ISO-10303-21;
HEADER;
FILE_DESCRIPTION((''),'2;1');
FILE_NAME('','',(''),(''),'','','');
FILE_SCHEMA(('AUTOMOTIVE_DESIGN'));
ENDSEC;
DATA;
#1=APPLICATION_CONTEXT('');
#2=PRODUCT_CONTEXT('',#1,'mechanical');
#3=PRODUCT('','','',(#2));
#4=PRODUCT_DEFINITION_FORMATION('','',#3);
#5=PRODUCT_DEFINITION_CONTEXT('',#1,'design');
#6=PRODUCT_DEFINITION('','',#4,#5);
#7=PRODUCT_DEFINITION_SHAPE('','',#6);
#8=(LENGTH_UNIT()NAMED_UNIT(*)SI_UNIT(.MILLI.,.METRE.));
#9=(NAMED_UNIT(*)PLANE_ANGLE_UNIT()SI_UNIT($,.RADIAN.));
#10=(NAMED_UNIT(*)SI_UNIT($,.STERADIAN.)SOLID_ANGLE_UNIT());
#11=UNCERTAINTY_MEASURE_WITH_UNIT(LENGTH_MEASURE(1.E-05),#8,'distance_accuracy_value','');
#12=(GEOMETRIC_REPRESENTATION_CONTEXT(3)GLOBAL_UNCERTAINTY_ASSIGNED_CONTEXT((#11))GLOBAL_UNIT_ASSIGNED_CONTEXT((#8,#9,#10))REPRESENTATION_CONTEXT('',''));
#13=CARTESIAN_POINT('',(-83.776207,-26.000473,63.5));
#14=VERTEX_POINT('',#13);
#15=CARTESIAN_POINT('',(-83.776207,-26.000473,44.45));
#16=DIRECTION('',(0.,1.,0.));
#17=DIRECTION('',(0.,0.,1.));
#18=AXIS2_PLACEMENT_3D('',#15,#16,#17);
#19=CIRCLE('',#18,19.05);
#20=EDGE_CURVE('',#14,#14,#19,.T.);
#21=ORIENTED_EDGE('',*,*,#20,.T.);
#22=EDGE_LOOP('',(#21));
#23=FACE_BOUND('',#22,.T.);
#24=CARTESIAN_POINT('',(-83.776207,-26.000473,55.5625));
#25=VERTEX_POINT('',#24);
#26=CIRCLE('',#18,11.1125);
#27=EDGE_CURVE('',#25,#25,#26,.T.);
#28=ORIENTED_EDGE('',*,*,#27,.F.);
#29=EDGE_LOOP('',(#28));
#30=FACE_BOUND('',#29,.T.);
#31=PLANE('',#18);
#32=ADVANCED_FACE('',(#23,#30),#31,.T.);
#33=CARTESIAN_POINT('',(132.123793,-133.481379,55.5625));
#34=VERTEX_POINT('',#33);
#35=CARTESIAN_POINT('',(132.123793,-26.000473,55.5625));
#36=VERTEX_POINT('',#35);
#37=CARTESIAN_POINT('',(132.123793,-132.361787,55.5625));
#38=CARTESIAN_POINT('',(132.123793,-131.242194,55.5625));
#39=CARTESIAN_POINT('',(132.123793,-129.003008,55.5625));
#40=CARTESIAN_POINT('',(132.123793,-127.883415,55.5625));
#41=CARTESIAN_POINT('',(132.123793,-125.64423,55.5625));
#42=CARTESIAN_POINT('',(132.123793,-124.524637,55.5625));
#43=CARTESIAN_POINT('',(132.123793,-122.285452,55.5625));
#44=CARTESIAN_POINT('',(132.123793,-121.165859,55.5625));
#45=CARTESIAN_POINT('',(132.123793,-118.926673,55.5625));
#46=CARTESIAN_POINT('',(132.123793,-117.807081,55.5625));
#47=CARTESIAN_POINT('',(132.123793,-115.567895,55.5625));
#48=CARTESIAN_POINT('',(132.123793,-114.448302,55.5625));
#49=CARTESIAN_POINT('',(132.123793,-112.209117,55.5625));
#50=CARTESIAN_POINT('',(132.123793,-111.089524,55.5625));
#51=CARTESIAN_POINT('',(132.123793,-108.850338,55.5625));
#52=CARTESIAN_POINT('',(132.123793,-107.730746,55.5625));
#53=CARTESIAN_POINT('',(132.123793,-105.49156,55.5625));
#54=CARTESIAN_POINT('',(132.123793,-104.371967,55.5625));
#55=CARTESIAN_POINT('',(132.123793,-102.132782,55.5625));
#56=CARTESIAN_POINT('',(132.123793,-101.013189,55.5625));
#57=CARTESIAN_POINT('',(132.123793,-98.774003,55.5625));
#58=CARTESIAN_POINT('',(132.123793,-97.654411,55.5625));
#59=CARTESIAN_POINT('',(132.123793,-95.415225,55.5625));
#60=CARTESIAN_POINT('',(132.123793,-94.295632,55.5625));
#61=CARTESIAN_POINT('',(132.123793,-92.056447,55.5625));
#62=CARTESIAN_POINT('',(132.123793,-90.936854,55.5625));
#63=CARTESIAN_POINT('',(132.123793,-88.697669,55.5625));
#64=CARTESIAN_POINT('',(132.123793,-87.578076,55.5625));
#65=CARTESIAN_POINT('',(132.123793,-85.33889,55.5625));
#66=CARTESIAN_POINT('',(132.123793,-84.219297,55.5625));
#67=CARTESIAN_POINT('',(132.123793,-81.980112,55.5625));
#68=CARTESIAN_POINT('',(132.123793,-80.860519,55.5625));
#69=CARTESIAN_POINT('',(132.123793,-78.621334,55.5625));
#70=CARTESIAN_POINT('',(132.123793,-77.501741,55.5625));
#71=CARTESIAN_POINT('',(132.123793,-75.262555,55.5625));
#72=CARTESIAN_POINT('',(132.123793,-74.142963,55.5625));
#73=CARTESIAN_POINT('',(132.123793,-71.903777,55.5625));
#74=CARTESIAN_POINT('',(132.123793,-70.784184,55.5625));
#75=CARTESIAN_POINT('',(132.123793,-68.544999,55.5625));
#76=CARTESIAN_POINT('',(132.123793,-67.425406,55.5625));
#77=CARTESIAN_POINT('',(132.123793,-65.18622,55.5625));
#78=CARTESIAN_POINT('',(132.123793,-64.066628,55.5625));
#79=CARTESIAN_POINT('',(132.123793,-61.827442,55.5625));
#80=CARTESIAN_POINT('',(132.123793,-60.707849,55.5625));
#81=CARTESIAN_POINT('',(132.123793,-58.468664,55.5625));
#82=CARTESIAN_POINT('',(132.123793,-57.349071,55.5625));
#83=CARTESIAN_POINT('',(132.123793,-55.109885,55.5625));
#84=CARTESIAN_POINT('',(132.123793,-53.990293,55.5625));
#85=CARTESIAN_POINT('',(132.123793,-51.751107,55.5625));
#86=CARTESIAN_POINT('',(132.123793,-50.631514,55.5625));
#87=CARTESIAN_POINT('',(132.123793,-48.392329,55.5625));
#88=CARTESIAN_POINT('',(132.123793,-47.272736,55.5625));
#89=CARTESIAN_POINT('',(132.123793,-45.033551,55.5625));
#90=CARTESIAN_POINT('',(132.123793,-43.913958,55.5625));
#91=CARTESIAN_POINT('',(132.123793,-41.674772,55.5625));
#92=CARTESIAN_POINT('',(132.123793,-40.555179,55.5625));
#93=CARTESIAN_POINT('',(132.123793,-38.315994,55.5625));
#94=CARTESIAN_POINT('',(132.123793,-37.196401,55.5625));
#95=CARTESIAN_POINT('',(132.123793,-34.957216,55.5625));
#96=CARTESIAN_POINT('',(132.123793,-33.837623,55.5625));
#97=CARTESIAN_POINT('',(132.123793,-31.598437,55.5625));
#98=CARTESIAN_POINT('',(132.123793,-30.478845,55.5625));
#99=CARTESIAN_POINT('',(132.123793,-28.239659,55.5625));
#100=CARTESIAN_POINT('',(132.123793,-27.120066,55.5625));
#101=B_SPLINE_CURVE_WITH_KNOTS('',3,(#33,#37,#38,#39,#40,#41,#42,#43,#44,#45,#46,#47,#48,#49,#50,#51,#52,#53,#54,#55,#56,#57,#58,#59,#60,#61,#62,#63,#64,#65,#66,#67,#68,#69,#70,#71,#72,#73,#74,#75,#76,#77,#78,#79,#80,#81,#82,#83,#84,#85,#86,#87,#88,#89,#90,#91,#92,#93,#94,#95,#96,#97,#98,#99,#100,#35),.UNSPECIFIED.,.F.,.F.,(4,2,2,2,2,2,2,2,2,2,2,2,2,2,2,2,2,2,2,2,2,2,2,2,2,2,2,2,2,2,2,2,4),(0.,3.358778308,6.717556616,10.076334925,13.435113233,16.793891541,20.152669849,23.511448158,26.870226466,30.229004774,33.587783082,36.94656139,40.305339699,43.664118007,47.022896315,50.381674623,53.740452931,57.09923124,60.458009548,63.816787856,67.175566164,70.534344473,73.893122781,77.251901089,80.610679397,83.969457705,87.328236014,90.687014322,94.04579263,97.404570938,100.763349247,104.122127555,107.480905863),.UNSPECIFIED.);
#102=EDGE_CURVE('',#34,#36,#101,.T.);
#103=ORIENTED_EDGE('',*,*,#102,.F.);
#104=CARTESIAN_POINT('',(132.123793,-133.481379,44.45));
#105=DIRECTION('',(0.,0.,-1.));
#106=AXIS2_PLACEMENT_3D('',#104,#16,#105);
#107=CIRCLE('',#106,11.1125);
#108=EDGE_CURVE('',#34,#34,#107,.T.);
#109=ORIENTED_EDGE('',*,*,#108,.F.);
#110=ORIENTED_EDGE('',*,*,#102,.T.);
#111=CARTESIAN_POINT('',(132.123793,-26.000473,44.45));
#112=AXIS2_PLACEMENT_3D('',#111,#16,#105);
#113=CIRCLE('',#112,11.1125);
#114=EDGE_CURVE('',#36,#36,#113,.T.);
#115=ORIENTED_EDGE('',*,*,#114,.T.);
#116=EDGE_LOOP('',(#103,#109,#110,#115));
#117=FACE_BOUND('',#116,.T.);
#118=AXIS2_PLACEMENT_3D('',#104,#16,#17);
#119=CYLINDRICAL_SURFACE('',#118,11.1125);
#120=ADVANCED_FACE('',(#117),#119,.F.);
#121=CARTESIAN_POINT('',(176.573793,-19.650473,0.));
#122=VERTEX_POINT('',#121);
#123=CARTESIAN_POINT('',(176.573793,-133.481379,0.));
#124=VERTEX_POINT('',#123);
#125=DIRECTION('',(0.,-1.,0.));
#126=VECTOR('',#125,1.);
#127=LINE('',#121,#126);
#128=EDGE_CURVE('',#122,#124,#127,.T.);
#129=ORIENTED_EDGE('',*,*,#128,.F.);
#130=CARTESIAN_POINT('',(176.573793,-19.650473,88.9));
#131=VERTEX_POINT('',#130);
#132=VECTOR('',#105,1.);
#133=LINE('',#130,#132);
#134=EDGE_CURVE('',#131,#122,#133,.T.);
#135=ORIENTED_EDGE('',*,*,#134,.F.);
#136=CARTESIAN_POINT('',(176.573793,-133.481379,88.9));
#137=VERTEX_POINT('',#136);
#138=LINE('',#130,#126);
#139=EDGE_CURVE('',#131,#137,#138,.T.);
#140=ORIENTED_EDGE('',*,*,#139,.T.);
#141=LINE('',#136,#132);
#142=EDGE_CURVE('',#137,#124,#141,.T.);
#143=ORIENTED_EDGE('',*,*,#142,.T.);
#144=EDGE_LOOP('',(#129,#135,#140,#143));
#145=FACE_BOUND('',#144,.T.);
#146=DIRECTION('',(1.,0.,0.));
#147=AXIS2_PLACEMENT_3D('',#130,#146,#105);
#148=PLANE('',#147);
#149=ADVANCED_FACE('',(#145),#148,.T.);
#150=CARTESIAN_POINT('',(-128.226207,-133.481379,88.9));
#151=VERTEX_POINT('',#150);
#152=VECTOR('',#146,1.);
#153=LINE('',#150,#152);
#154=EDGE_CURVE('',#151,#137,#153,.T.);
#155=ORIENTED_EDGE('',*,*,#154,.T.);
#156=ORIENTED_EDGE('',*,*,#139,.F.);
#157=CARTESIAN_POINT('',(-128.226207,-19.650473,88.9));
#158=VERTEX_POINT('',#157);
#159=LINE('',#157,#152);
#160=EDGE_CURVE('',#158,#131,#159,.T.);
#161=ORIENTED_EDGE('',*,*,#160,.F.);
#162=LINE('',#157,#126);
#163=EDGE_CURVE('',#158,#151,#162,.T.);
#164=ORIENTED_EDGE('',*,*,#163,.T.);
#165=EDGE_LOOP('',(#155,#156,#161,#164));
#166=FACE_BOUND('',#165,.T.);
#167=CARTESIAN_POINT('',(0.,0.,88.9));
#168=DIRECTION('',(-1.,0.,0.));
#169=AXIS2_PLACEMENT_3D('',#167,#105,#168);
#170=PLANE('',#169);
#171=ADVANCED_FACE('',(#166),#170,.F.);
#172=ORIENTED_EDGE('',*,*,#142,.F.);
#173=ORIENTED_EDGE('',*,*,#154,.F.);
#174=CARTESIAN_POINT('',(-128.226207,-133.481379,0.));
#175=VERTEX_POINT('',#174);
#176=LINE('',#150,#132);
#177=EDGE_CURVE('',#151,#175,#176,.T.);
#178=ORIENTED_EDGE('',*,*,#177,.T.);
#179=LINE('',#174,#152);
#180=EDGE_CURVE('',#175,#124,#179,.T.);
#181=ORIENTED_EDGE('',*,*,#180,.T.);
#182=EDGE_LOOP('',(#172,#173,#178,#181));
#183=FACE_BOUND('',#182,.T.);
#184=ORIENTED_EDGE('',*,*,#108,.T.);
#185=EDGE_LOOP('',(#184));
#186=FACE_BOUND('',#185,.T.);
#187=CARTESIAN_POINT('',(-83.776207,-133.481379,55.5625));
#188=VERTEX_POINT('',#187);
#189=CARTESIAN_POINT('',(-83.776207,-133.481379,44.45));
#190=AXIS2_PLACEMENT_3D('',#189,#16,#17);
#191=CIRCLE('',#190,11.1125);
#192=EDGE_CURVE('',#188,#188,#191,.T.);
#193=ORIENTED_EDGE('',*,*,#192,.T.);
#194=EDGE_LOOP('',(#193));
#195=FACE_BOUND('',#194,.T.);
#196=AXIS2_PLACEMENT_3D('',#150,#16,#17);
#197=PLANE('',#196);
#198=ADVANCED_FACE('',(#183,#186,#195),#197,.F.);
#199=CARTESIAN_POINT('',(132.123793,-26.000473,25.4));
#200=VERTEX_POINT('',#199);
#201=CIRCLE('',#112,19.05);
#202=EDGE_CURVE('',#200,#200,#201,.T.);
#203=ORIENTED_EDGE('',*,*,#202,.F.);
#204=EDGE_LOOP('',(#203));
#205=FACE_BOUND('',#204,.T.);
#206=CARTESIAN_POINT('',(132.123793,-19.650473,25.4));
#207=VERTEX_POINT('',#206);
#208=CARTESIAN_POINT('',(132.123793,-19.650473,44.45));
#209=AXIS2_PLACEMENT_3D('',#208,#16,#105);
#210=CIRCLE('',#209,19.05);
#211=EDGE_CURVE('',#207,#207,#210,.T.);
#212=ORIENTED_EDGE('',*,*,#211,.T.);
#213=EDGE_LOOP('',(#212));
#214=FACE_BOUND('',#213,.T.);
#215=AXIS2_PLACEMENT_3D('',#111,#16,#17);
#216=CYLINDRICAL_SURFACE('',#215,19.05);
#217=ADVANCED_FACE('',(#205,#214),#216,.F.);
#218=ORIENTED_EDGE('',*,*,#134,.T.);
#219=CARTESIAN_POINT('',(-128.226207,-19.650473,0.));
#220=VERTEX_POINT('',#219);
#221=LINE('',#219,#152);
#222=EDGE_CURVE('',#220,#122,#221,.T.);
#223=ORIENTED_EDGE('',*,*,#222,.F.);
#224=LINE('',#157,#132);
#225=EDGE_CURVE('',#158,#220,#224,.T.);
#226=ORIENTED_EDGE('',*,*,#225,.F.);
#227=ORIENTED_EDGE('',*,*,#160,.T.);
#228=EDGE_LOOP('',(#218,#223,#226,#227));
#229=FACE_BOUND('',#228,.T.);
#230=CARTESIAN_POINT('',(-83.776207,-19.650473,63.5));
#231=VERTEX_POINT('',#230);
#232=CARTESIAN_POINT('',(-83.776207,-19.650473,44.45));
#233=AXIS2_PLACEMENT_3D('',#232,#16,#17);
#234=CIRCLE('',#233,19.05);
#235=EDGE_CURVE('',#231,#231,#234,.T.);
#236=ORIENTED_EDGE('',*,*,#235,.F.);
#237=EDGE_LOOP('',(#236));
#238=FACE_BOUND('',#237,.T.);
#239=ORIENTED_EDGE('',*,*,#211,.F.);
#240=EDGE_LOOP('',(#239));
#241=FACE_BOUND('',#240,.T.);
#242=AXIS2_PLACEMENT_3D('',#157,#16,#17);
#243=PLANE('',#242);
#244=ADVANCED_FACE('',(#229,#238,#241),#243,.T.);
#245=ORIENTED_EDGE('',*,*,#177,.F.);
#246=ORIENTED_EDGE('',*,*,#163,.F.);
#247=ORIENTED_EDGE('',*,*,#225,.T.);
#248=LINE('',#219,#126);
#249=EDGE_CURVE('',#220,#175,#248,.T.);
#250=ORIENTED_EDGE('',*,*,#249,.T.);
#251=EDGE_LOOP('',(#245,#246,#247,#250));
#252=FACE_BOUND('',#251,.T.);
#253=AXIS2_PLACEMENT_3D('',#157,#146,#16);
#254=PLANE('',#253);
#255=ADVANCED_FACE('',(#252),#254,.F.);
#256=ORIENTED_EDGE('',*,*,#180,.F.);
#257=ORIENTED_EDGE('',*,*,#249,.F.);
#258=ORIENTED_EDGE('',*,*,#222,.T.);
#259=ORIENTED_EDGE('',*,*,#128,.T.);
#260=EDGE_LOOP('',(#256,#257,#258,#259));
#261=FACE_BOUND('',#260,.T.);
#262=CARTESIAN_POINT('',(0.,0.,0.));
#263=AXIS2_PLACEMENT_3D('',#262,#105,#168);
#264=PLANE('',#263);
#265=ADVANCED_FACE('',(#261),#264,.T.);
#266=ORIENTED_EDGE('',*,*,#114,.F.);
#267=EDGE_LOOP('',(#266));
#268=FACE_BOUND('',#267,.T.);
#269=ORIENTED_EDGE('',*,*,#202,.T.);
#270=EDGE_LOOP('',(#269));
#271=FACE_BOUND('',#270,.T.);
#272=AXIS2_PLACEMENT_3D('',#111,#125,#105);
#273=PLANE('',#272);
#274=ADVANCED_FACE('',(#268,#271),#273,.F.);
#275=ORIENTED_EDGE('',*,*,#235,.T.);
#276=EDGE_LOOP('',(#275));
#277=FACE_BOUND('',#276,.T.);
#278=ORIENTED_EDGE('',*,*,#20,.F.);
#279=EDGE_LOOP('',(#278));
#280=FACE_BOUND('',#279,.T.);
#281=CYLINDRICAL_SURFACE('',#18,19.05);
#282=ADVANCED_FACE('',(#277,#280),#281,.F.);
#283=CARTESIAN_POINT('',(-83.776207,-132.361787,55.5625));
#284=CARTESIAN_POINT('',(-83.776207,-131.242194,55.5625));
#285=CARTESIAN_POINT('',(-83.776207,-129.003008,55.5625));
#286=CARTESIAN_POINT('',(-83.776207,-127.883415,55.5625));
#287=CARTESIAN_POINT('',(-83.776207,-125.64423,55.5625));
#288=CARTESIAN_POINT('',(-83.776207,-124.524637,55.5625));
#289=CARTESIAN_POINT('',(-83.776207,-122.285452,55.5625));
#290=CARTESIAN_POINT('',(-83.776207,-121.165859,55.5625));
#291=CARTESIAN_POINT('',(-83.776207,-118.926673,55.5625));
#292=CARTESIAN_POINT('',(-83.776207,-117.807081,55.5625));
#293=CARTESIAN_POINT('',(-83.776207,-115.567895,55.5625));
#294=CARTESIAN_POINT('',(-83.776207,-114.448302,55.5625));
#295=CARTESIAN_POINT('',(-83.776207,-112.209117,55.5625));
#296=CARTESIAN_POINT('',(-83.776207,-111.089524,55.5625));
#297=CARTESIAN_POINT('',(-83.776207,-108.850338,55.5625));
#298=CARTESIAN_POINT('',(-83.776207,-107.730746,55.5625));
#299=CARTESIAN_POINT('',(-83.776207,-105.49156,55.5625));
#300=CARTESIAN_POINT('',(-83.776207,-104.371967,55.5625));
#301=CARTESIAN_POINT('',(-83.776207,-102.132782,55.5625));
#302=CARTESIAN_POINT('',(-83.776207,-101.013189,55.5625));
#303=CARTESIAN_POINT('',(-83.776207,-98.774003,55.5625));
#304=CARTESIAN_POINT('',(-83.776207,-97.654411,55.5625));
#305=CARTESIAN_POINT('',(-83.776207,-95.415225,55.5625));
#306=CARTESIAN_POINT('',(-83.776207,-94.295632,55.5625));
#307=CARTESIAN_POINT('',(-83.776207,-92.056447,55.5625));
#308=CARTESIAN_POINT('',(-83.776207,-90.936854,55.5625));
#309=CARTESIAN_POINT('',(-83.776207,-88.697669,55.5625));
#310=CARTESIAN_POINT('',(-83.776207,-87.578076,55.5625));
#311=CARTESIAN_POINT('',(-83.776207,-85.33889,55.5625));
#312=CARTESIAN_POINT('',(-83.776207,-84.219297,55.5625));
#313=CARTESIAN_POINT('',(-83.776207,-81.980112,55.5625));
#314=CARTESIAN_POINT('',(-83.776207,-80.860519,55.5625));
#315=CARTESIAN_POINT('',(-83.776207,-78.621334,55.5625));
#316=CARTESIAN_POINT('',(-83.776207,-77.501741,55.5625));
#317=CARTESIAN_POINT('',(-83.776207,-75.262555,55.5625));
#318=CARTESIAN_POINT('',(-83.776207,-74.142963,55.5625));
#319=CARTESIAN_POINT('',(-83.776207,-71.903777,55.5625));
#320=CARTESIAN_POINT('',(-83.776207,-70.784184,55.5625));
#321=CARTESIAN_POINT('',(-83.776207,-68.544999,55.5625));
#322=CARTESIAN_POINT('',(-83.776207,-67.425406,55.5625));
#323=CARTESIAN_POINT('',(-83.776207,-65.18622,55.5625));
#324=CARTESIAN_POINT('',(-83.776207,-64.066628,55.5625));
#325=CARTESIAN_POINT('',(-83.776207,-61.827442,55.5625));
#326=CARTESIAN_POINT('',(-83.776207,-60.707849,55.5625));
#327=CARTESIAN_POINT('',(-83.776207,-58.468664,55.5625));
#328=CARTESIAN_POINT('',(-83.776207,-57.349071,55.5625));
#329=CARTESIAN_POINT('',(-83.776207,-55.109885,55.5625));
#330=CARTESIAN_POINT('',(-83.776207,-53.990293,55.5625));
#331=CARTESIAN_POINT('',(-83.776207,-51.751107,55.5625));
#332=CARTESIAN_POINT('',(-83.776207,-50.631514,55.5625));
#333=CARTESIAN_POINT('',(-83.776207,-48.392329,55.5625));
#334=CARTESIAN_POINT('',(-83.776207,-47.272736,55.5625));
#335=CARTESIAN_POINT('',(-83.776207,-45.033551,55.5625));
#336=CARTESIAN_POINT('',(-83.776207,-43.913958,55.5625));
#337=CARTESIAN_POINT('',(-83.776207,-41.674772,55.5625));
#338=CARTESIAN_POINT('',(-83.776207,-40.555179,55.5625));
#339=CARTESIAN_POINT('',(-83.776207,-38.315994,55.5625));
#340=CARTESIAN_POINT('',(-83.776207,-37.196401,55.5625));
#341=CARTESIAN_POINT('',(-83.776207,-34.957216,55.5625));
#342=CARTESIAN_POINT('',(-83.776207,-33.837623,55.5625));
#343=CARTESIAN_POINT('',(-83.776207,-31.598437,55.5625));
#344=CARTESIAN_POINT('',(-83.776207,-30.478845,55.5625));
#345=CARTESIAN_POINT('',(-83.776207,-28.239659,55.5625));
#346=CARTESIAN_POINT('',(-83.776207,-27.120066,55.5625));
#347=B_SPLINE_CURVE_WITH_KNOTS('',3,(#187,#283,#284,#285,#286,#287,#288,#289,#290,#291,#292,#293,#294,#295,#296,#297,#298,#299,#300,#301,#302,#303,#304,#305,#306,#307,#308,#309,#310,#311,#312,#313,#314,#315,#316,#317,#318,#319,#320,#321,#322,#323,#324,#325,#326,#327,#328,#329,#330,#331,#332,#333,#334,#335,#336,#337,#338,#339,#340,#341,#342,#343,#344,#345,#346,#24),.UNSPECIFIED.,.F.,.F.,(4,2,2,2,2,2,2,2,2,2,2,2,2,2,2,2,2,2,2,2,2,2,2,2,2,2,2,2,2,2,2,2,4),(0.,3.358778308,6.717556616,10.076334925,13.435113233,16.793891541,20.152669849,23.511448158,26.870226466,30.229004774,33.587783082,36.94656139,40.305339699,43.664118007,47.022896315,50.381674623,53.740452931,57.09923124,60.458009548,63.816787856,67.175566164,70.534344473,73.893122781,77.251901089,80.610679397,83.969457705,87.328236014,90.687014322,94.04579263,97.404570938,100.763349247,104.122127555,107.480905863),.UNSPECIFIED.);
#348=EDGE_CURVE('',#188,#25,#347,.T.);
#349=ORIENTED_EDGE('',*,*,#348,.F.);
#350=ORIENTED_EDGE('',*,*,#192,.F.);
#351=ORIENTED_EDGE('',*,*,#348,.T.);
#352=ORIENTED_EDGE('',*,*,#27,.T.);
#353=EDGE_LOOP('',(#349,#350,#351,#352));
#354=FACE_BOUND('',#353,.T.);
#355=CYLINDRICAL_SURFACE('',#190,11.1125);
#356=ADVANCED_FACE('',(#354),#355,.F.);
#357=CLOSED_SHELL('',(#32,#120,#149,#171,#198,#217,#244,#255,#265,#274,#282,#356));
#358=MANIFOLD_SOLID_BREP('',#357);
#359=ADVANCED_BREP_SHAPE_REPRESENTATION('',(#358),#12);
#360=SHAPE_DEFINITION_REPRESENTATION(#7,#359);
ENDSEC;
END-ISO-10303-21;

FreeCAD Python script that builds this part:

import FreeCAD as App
import Part
import Sketcher
Q = App.Units.Quantity

doc = App.newDocument("Part")
body = doc.addObject("PartDesign::Body", "Body")

# Sketch on XY plane
sketch1 = body.newObject("Sketcher::SketchObject", "Sketch")
sketch1.AttachmentSupport = (doc.getObject("XY_Plane"), [""])
sketch1.MapMode = "FlatFace"
sketch1.addGeometry([
    Part.LineSegment(App.Vector(-128, -20, 0), App.Vector(-128, -133, 0)),
    Part.LineSegment(App.Vector(-128, -133, 0), App.Vector(177, -133, 0)),
    Part.LineSegment(App.Vector(177, -133, 0), App.Vector(177, -20, 0)),
    Part.LineSegment(App.Vector(177, -20, 0), App.Vector(-128, -20, 0)),
], False)
sketch1.addConstraint([
    Sketcher.Constraint("Coincident", 0, 2, 1, 1),
    Sketcher.Constraint("Coincident", 1, 2, 2, 1),
    Sketcher.Constraint("Coincident", 2, 2, 3, 1),
    Sketcher.Constraint("Coincident", 3, 2, 0, 1),
    Sketcher.Constraint("Vertical", 0),
    Sketcher.Constraint("Horizontal", 1),
    Sketcher.Constraint("Vertical", 2),
    Sketcher.Constraint("Horizontal", 3),
    Sketcher.Constraint("DistanceX", 1, 1, 1, 2, Q("12 in")),
    Sketcher.Constraint("DistanceY", 0, 2, 0, 1, Q("113.830906 mm")),
    Sketcher.Constraint("DistanceY", 0, 2, -1, 1, Q("133.481379 mm")),
    Sketcher.Constraint("DistanceX", 0, 2, -1, 1, Q("128.226207 mm")),
])
pad1 = body.newObject("PartDesign::Pad", "Pad")
pad1.Profile = sketch1
pad1.Length = Q("3.5 in")

# Sketch on XZ plane
sketch2 = body.newObject("Sketcher::SketchObject", "Sketch001")
sketch2.AttachmentSupport = (doc.getObject("XZ_Plane"), [""])
sketch2.MapMode = "FlatFace"
sketch2.AttachmentOffset = App.Placement(App.Vector(0, 0, 19.650473), App.Rotation())
sketch2.addGeometry([
    Part.Circle(App.Vector(-84, 44, 0), App.Vector(0, 0, 1), 19),
    Part.Circle(App.Vector(132, 44, 0), App.Vector(0, 0, 1), 19),
], False)
sketch2.addConstraint([
    Sketcher.Constraint("Equal", 0, 1),
    Sketcher.Constraint("Horizontal", 0, 3, 1, 3),
    Sketcher.Constraint("Diameter", 0, Q("1.5 in")),
    Sketcher.Constraint("DistanceX", 0, 3, 1, 3, Q("8.5 in")),
    Sketcher.Constraint("DistanceY", -1, 1, 0, 3, Q("1.75 in")),
    Sketcher.Constraint("DistanceX", 0, 3, -1, 1, Q("83.776207 mm")),
])
pocket1 = body.newObject("PartDesign::Pocket", "Pocket")
pocket1.Profile = sketch2
pocket1.Length = Q("0.25 in")
pocket1.Reversed = True

# Sketch on XZ plane
sketch3 = body.newObject("Sketcher::SketchObject", "Sketch002")
sketch3.AttachmentSupport = (doc.getObject("XZ_Plane"), [""])
sketch3.MapMode = "FlatFace"
sketch3.AttachmentOffset = App.Placement(App.Vector(0, 0, 26.000473), App.Rotation())
sketch3.addGeometry([
    Part.Circle(App.Vector(-84, 44, 0), App.Vector(0, 0, 1), 11),
    Part.Circle(App.Vector(132, 44, 0), App.Vector(0, 0, 1), 11),
], False)
sketch3.addConstraint([
    Sketcher.Constraint("Equal", 0, 1),
    Sketcher.Constraint("Horizontal", 0, 3, 1, 3),
    Sketcher.Constraint("Diameter", 0, Q("0.875 in")),
    Sketcher.Constraint("DistanceX", 0, 3, 1, 3, Q("8.5 in")),
    Sketcher.Constraint("DistanceY", -1, 1, 0, 3, Q("1.75 in")),
    Sketcher.Constraint("DistanceX", 0, 3, -1, 1, Q("83.776207 mm")),
])
pocket2 = body.newObject("PartDesign::Pocket", "Pocket001")
pocket2.Profile = sketch3
pocket2.Type = "ThroughAll"
pocket2.Reversed = True

doc.recompute()
